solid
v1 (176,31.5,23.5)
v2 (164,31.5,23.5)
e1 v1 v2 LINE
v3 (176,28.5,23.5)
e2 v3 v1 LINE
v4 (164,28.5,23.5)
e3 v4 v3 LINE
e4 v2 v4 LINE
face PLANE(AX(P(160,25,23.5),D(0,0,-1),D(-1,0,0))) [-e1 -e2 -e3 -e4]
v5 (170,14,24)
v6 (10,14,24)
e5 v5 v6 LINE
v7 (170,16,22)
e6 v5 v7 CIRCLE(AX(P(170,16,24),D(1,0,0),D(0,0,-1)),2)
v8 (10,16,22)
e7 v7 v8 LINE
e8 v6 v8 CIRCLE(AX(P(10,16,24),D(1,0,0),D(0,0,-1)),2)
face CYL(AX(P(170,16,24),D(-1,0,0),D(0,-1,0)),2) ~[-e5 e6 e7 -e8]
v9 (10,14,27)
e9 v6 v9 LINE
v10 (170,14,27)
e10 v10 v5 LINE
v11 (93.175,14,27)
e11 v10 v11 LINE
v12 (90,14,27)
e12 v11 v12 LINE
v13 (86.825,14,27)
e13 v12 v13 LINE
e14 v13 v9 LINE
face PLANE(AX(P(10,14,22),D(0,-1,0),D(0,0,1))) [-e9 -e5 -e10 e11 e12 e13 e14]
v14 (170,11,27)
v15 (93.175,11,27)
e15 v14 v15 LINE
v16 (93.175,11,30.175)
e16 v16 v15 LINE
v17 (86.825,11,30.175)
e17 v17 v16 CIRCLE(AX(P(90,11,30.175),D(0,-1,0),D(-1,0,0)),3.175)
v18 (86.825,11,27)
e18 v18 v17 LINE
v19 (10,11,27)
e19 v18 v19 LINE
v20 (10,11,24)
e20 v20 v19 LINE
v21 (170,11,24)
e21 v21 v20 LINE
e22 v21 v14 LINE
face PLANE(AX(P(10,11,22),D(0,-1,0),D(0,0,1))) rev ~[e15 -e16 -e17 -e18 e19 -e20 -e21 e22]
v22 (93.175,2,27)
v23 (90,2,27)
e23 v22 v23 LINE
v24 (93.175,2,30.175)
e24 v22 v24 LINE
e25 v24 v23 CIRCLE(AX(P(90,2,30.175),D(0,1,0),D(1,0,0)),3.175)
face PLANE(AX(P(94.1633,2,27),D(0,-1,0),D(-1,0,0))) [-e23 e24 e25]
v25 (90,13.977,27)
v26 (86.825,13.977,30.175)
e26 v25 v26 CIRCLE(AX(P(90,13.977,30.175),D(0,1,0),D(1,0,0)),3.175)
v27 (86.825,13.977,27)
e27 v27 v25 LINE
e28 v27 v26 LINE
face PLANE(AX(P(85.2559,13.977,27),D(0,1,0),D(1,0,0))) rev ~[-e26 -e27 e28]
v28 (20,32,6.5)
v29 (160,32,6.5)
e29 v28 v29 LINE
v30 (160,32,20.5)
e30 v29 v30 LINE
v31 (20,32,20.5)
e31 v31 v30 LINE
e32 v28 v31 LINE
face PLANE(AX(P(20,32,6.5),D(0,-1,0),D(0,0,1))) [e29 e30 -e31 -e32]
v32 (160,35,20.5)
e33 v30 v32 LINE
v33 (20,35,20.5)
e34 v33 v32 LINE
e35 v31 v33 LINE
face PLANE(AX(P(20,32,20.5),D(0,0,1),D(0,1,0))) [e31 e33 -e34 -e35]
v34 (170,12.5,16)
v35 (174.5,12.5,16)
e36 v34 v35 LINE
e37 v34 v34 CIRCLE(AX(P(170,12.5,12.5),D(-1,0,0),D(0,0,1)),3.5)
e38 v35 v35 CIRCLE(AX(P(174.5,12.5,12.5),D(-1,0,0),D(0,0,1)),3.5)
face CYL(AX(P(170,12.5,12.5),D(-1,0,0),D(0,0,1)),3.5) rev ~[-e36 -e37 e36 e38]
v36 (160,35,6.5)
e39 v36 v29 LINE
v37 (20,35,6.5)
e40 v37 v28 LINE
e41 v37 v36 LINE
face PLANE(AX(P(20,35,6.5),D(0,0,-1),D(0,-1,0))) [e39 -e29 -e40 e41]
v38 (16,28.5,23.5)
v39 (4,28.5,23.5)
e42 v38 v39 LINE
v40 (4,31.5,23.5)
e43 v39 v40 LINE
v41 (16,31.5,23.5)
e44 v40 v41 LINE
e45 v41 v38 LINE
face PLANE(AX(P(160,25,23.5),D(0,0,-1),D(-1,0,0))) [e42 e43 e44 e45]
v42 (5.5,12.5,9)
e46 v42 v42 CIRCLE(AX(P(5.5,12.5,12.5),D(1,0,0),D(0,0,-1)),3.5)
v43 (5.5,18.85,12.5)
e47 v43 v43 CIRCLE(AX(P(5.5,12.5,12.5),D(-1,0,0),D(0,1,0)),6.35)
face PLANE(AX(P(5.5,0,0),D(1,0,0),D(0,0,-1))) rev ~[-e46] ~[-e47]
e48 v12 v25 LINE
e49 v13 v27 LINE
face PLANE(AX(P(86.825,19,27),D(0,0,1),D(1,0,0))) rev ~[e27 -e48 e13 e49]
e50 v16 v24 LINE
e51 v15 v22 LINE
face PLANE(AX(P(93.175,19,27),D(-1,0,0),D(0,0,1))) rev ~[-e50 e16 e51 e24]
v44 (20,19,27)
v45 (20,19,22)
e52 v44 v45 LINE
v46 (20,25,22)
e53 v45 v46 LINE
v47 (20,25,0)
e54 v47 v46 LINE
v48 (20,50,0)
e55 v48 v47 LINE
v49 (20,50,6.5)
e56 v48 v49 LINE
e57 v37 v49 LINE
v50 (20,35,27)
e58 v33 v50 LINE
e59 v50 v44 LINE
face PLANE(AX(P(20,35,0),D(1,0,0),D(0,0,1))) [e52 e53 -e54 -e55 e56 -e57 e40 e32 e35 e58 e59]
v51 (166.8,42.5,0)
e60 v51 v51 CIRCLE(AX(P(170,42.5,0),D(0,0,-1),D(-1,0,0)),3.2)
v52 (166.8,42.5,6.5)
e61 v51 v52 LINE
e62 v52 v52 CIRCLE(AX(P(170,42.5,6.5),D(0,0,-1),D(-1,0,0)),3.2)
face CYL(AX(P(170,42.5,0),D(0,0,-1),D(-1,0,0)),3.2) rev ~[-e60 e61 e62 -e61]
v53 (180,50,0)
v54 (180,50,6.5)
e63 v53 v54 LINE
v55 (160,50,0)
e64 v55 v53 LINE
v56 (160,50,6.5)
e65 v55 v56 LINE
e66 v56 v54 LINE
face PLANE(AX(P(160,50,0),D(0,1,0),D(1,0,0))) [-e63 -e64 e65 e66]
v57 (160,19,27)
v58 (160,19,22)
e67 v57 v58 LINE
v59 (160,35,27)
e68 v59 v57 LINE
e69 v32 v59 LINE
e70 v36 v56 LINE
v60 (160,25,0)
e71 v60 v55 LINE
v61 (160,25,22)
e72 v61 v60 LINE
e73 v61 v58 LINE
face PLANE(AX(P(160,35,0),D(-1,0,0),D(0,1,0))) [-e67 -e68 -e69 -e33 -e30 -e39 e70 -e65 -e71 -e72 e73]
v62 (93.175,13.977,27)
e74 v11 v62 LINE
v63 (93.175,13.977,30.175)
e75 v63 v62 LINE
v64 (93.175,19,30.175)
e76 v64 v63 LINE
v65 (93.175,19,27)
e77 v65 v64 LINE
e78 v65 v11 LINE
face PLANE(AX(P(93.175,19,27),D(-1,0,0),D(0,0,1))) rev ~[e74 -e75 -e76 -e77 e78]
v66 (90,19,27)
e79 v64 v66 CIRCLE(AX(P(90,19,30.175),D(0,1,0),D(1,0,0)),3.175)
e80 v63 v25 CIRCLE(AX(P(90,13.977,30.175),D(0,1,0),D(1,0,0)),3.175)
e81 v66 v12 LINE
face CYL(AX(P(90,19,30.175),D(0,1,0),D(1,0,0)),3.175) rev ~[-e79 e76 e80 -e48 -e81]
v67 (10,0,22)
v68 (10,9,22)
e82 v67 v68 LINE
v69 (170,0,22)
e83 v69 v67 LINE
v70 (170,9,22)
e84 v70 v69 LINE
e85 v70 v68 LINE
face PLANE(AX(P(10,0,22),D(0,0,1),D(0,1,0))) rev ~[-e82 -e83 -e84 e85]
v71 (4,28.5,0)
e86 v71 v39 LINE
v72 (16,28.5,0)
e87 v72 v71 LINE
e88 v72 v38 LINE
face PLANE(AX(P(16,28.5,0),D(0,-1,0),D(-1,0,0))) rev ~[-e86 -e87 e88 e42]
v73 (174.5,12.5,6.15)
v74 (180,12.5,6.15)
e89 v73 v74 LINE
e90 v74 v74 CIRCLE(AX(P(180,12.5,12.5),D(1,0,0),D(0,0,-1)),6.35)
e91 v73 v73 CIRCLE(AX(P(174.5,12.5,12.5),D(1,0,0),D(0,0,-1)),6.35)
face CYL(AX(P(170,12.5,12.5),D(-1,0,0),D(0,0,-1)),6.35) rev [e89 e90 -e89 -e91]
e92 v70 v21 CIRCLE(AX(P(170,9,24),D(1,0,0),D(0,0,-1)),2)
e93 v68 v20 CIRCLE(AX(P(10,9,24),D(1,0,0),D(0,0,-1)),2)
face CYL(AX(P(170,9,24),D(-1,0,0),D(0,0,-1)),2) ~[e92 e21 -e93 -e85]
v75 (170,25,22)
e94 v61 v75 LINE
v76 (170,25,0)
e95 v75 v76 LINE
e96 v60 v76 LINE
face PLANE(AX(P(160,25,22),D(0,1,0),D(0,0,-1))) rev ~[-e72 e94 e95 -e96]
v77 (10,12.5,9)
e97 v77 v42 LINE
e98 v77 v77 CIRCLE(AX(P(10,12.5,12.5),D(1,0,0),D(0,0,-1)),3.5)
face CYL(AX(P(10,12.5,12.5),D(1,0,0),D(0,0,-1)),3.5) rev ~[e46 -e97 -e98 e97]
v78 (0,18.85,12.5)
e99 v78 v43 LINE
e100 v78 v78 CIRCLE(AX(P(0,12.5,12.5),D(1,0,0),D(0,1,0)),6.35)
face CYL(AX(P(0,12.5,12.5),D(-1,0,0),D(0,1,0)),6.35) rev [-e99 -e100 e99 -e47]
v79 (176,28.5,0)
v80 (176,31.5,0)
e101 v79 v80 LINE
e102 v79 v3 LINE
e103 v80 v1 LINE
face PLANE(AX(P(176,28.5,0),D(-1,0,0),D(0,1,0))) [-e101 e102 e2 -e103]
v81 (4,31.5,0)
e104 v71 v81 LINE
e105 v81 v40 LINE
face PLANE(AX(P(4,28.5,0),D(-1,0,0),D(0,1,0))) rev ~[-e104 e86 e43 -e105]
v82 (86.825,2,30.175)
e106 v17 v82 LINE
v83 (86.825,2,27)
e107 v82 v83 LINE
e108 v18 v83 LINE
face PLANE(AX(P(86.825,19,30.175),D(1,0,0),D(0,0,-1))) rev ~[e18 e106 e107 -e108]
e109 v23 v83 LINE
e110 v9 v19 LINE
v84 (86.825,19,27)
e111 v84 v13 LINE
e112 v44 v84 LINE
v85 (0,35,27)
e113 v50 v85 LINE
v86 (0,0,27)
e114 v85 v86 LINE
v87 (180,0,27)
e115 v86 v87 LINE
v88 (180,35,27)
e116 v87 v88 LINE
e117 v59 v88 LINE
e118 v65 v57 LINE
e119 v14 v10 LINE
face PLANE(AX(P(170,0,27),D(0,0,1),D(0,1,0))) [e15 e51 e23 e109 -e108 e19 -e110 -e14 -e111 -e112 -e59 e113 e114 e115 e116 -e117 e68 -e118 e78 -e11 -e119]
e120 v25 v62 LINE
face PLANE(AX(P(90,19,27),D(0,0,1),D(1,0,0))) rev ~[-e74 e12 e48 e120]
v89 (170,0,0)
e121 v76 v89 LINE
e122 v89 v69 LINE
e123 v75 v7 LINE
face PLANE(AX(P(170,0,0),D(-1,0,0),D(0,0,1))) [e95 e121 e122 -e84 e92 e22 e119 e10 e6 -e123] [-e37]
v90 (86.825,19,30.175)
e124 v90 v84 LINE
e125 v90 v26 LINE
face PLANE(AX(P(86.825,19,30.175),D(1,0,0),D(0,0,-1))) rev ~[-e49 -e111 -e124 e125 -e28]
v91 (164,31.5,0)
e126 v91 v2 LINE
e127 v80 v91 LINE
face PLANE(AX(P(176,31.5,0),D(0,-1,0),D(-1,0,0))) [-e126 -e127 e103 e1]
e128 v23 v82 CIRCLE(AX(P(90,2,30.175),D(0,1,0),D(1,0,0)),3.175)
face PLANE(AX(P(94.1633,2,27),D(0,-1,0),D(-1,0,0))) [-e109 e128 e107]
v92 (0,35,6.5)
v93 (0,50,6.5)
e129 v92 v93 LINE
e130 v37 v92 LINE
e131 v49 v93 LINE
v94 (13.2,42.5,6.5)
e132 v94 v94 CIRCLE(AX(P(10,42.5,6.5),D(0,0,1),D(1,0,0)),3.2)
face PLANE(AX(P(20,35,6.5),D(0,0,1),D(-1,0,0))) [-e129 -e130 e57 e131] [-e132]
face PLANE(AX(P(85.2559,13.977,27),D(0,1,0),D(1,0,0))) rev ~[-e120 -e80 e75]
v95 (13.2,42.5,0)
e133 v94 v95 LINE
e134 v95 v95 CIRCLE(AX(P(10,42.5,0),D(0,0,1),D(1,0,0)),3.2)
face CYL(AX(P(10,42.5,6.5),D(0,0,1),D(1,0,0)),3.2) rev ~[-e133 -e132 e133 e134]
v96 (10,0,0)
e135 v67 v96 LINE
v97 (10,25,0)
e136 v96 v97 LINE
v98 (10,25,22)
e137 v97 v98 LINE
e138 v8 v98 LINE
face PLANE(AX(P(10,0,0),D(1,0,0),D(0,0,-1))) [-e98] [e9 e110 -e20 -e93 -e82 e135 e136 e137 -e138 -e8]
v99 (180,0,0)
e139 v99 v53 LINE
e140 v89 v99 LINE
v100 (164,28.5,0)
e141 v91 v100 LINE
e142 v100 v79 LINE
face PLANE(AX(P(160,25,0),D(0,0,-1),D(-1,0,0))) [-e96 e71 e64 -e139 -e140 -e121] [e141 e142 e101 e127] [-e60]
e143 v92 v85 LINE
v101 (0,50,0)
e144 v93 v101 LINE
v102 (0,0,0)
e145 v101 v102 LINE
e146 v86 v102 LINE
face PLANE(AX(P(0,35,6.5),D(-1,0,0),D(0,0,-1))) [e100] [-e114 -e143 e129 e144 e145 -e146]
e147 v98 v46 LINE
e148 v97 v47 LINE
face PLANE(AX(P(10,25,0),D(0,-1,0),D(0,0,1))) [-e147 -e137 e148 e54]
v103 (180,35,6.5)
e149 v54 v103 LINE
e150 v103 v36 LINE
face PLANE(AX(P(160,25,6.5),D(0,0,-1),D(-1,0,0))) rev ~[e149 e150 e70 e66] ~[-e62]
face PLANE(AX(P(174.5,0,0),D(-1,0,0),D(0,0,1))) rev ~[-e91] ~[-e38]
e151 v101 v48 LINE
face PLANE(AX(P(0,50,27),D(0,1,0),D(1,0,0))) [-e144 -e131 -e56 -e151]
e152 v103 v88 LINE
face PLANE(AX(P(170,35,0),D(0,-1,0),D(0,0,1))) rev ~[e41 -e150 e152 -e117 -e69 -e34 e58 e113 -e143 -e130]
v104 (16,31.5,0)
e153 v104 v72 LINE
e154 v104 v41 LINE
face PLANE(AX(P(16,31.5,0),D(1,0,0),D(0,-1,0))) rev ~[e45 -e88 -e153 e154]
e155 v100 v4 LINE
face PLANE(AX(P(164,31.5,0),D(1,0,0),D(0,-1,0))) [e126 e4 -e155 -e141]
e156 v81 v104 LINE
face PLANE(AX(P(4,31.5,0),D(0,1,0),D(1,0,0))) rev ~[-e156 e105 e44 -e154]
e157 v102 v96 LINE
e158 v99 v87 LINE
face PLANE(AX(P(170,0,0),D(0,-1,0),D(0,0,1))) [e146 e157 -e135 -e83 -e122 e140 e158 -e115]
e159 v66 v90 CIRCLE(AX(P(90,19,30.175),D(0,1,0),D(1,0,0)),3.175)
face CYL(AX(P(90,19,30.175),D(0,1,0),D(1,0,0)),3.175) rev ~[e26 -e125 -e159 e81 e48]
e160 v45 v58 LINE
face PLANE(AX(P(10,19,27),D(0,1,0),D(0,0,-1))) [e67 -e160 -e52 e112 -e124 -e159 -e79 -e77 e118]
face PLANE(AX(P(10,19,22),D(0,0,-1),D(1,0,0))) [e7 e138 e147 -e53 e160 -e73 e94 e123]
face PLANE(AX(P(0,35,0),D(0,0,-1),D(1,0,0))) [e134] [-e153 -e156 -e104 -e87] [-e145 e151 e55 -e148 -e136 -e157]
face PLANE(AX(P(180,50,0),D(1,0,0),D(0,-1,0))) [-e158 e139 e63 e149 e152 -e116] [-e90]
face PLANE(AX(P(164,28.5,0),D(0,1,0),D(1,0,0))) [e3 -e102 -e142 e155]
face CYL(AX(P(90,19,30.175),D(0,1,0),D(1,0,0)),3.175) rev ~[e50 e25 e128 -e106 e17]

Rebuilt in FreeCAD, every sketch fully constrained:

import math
import FreeCAD as App
import Part
import Sketcher

V = App.Vector


def edges_at(feature, points):
    """Names of the edges that pass closest to the given points."""
    edges = feature.Shape.Edges
    near = lambda p: min(range(len(edges)), key=lambda i: edges[i].distToShape(Part.Vertex(*p))[0])
    return sorted({f"Edge{near(p) + 1}" for p in points})


def add_polygon(sketch, points):
    """Adds a closed chain of lines whose ends are joined by coincident constraints."""
    first, n = sketch.GeometryCount, len(points)
    for a, b in zip(points, points[1:] + points[:1]):
        sketch.addGeometry(Part.LineSegment(App.Vector(*a, 0), App.Vector(*b, 0)), False)
    for i in range(n):
        sketch.addConstraint(Sketcher.Constraint("Coincident", first + i, 2, first + (i + 1) % n, 1))

doc = App.newDocument("Part")
params = doc.addObject("Spreadsheet::Sheet", "Params")
for row, (alias, value) in enumerate([
    ("sketch1_diameter", "12.7 mm"),
    ("sketch1_width", "35 mm"),
    ("sketch1_height", "27 mm"),
    ("pad1_length", "10 mm"),
    ("sketch2_width", "10 mm"),
    ("sketch2_height", "27 mm"),
    ("pad2_length", "10 mm"),
    ("sketch3_width", "5 mm"),
    ("sketch3_width2", "11 mm"),
    ("pad3_length", "150 mm"),
    ("sketch4_width", "10 mm"),
    ("sketch4_height", "5 mm"),
    ("pad4_length", "7.5 mm"),
    ("sketch5_width", "11 mm"),
    ("sketch5_height", "5 mm"),
    ("sketch5_width2", "21 mm"),
    ("sketch5_height2", "22 mm"),
    ("pad5_length", "10 mm"),
    ("sketch6_diameter", "12.7 mm"),
    ("sketch6_width", "35 mm"),
    ("sketch6_height", "27 mm"),
    ("pad6_length", "10 mm"),
    ("fillet_radius", "2 mm"),
    ("sketch7_width", "3 mm"),
    ("sketch7_height", "14 mm"),
    ("pad7_length", "140 mm"),
    ("sketch8_width", "12 mm"),
    ("sketch8_height", "3 mm"),
    ("pocket1_length", "23.5 mm"),
    ("sketch9_diameter", "7 mm"),
    ("sketch9_diameter2", "12.7 mm"),
    ("pad8_length", "4.5 mm"),
    ("sketch10_diameter", "7 mm"),
    ("sketch10_diameter2", "12.7 mm"),
    ("pad9_length", "4.5 mm"),
    ("pad10_length", "19 mm"),
    ("sketch12_height", "2 mm"),
    ("pocket2_length", "19 mm"),
    ("sketch13_width", "20 mm"),
    ("sketch13_height", "6.5 mm"),
    ("pad11_length", "15 mm"),
    ("sketch14_diameter", "6.4 mm"),
    ("pocket3_length", "15 mm"),
    ("sketch15_diameter", "6.4 mm"),
    ("sketch15_width", "20 mm"),
    ("sketch15_height", "15 mm"),
    ("pad12_length", "6.5 mm"),
], start=1):
    params.set(f"A{row}", alias)
    params.set(f"B{row}", "=" + value)
    params.setAlias(f"B{row}", alias)

body = doc.addObject("PartDesign::Body", "Body")

# Sketch on YZ plane
sketch1 = body.newObject("Sketcher::SketchObject", "Sketch")
sketch1.AttachmentSupport = (doc.getObject("YZ_Plane"), [""])
sketch1.MapMode = "FlatFace"
add_polygon(sketch1, [(0, 27), (0, 0), (35, 0), (35, 27)])  # lines 0-3
sketch1.addGeometry(Part.Circle(V(12.5, 12.5, 0), V(0, 0, 1), 6.35), False)  # 4
sketch1.addConstraint(Sketcher.Constraint("Vertical", 0))
sketch1.addConstraint(Sketcher.Constraint("Horizontal", 1))
sketch1.addConstraint(Sketcher.Constraint("Vertical", 2))
sketch1.addConstraint(Sketcher.Constraint("Horizontal", 3))
sketch1.addConstraint(Sketcher.Constraint("Coincident", 0, 2, -1, 1))
sketch1.addConstraint(Sketcher.Constraint("Diameter", 4, 12.7))
sketch1.addConstraint(Sketcher.Constraint("DistanceX", 1, 1, 1, 2, 35.0))
sketch1.addConstraint(Sketcher.Constraint("DistanceY", 0, 2, 0, 1, 27.0))
sketch1.addConstraint(Sketcher.Constraint("DistanceX", -1, 1, 4, 3, 12.5))
sketch1.addConstraint(Sketcher.Constraint("DistanceY", -1, 1, 4, 3, 12.5))
sketch1.setExpression("Constraints[9]", "Params.sketch1_diameter")
sketch1.setExpression("Constraints[10]", "Params.sketch1_width")
sketch1.setExpression("Constraints[11]", "Params.sketch1_height")
pad1 = body.newObject("PartDesign::Pad", "Pad")
pad1.Profile = sketch1
pad1.setExpression("Length", "Params.pad1_length")

# Sketch on YZ plane
sketch2 = body.newObject("Sketcher::SketchObject", "Sketch001")
sketch2.AttachmentSupport = (doc.getObject("YZ_Plane"), [""])
sketch2.MapMode = "FlatFace"
sketch2.AttachmentOffset = App.Placement(V(0, 0, 10), App.Rotation())
add_polygon(sketch2, [(25, 0), (35, 0), (35, 27), (25, 27)])  # lines 0-3
sketch2.addConstraint(Sketcher.Constraint("Horizontal", 0))
sketch2.addConstraint(Sketcher.Constraint("Vertical", 1))
sketch2.addConstraint(Sketcher.Constraint("Horizontal", 2))
sketch2.addConstraint(Sketcher.Constraint("Vertical", 3))
sketch2.addConstraint(Sketcher.Constraint("PointOnObject", 0, 2, -1))
sketch2.addConstraint(Sketcher.Constraint("DistanceX", 0, 1, 0, 2, 10.0))
sketch2.addConstraint(Sketcher.Constraint("DistanceY", 1, 1, 1, 2, 27.0))
sketch2.addConstraint(Sketcher.Constraint("DistanceX", -1, 1, 0, 2, 35.0))
sketch2.setExpression("Constraints[9]", "Params.sketch2_width")
sketch2.setExpression("Constraints[10]", "Params.sketch2_height")
pad2 = body.newObject("PartDesign::Pad", "Pad001")
pad2.Profile = sketch2
pad2.setExpression("Length", "Params.pad2_length")

# Sketch on YZ plane
sketch3 = body.newObject("Sketcher::SketchObject", "Sketch002")
sketch3.AttachmentSupport = (doc.getObject("YZ_Plane"), [""])
sketch3.MapMode = "FlatFace"
sketch3.AttachmentOffset = App.Placement(V(0, 0, 10), App.Rotation())
add_polygon(sketch3, [(19, 22), (19, 27), (14, 27), (14, 22)])  # lines 0-3
add_polygon(sketch3, [(11, 22), (11, 27), (0, 27), (0, 22)])  # lines 4-7
sketch3.addConstraint(Sketcher.Constraint("Vertical", 0))
sketch3.addConstraint(Sketcher.Constraint("Horizontal", 1))
sketch3.addConstraint(Sketcher.Constraint("Vertical", 2))
sketch3.addConstraint(Sketcher.Constraint("Horizontal", 3))
sketch3.addConstraint(Sketcher.Constraint("Vertical", 4))
sketch3.addConstraint(Sketcher.Constraint("Horizontal", 5))
sketch3.addConstraint(Sketcher.Constraint("Vertical", 6))
sketch3.addConstraint(Sketcher.Constraint("Horizontal", 7))
sketch3.addConstraint(Sketcher.Constraint("PointOnObject", 5, 2, -2))
sketch3.addConstraint(Sketcher.Constraint("Horizontal", 1, 2, 4, 2))
sketch3.addConstraint(Sketcher.Constraint("Horizontal", 3, 2, 6, 2))
sketch3.addConstraint(Sketcher.Constraint("Equal", 3, 0))
sketch3.addConstraint(Sketcher.Constraint("DistanceX", 1, 2, 1, 1, 5.0))
sketch3.addConstraint(Sketcher.Constraint("DistanceX", 5, 2, 5, 1, 11.0))
sketch3.addConstraint(Sketcher.Constraint("DistanceX", -1, 1, 0, 2, 19.0))
sketch3.addConstraint(Sketcher.Constraint("DistanceY", -1, 1, 0, 2, 27.0))
sketch3.setExpression("Constraints[20]", "Params.sketch3_width")
sketch3.setExpression("Constraints[21]", "Params.sketch3_width2")
pad3 = body.newObject("PartDesign::Pad", "Pad002")
pad3.Profile = sketch3
pad3.setExpression("Length", "Params.pad3_length")

# Sketch on XZ plane
sketch4 = body.newObject("Sketcher::SketchObject", "Sketch003")
sketch4.AttachmentSupport = (doc.getObject("XZ_Plane"), [""])
sketch4.MapMode = "FlatFace"
sketch4.AttachmentOffset = App.Placement(V(0, 0, -19), App.Rotation())
add_polygon(sketch4, [(10, 22), (10, 27), (20, 27), (20, 22)])  # lines 0-3
sketch4.addConstraint(Sketcher.Constraint("Vertical", 0))
sketch4.addConstraint(Sketcher.Constraint("Horizontal", 1))
sketch4.addConstraint(Sketcher.Constraint("Vertical", 2))
sketch4.addConstraint(Sketcher.Constraint("Horizontal", 3))
sketch4.addConstraint(Sketcher.Constraint("DistanceX", 1, 1, 1, 2, 10.0))
sketch4.addConstraint(Sketcher.Constraint("DistanceX", -1, 1, 0, 2, 10.0))
sketch4.addConstraint(Sketcher.Constraint("DistanceY", 0, 1, 0, 2, 5.0))
sketch4.addConstraint(Sketcher.Constraint("DistanceY", -1, 1, 0, 2, 27.0))
sketch4.setExpression("Constraints[8]", "Params.sketch4_width")
sketch4.setExpression("Constraints[10]", "Params.sketch4_height")
pad4 = body.newObject("PartDesign::Pad", "Pad003")
pad4.Profile = sketch4
pad4.setExpression("Length", "Params.pad4_length")
pad4.Reversed = True

# Sketch on YZ plane
sketch5 = body.newObject("Sketcher::SketchObject", "Sketch004")
sketch5.AttachmentSupport = (doc.getObject("YZ_Plane"), [""])
sketch5.MapMode = "FlatFace"
sketch5.AttachmentOffset = App.Placement(V(0, 0, 160), App.Rotation())
add_polygon(sketch5, [(35, 27), (14, 27), (14, 22), (25, 22), (25, 0), (35, 0)])  # lines 0-5
add_polygon(sketch5, [(0, 22), (11, 22), (11, 27), (0, 27)])  # lines 6-9
sketch5.addConstraint(Sketcher.Constraint("Horizontal", 0))
sketch5.addConstraint(Sketcher.Constraint("Vertical", 1))
sketch5.addConstraint(Sketcher.Constraint("Horizontal", 2))
sketch5.addConstraint(Sketcher.Constraint("Vertical", 3))
sketch5.addConstraint(Sketcher.Constraint("Horizontal", 4))
sketch5.addConstraint(Sketcher.Constraint("Vertical", 5))
sketch5.addConstraint(Sketcher.Constraint("Horizontal", 6))
sketch5.addConstraint(Sketcher.Constraint("Vertical", 7))
sketch5.addConstraint(Sketcher.Constraint("Horizontal", 8))
sketch5.addConstraint(Sketcher.Constraint("Vertical", 9))
sketch5.addConstraint(Sketcher.Constraint("PointOnObject", 3, 2, -1))
sketch5.addConstraint(Sketcher.Constraint("PointOnObject", 8, 2, -2))
sketch5.addConstraint(Sketcher.Constraint("Horizontal", 2, 2, 6, 2))
sketch5.addConstraint(Sketcher.Constraint("Horizontal", 5, 2, 7, 2))
sketch5.addConstraint(Sketcher.Constraint("Equal", 2, 6))
sketch5.addConstraint(Sketcher.Constraint("DistanceX", 2, 1, 2, 2, 11.0))
sketch5.addConstraint(Sketcher.Constraint("DistanceY", 1, 2, 1, 1, 5.0))
sketch5.addConstraint(Sketcher.Constraint("DistanceX", 0, 2, 0, 1, 21.0))
sketch5.addConstraint(Sketcher.Constraint("DistanceY", 3, 2, 3, 1, 22.0))
sketch5.addConstraint(Sketcher.Constraint("DistanceX", -1, 1, 0, 2, 14.0))
sketch5.setExpression("Constraints[25]", "Params.sketch5_width")
sketch5.setExpression("Constraints[26]", "Params.sketch5_height")
sketch5.setExpression("Constraints[27]", "Params.sketch5_width2")
sketch5.setExpression("Constraints[28]", "Params.sketch5_height2")
pad5 = body.newObject("PartDesign::Pad", "Pad004")
pad5.Profile = sketch5
pad5.setExpression("Length", "Params.pad5_length")

# Sketch on YZ plane
sketch6 = body.newObject("Sketcher::SketchObject", "Sketch005")
sketch6.AttachmentSupport = (doc.getObject("YZ_Plane"), [""])
sketch6.MapMode = "FlatFace"
sketch6.AttachmentOffset = App.Placement(V(0, 0, 170), App.Rotation())
add_polygon(sketch6, [(0, 0), (35, 0), (35, 27), (0, 27)])  # lines 0-3
sketch6.addGeometry(Part.Circle(V(12.5, 12.5, 0), V(0, 0, 1), 6.35), False)  # 4
sketch6.addConstraint(Sketcher.Constraint("Horizontal", 0))
sketch6.addConstraint(Sketcher.Constraint("Vertical", 1))
sketch6.addConstraint(Sketcher.Constraint("Horizontal", 2))
sketch6.addConstraint(Sketcher.Constraint("Vertical", 3))
sketch6.addConstraint(Sketcher.Constraint("Coincident", 3, 2, -1, 1))
sketch6.addConstraint(Sketcher.Constraint("Diameter", 4, 12.7))
sketch6.addConstraint(Sketcher.Constraint("DistanceX", 0, 1, 0, 2, 35.0))
sketch6.addConstraint(Sketcher.Constraint("DistanceY", 1, 1, 1, 2, 27.0))
sketch6.addConstraint(Sketcher.Constraint("DistanceX", -1, 1, 4, 3, 12.5))
sketch6.addConstraint(Sketcher.Constraint("DistanceY", -1, 1, 4, 3, 12.5))
sketch6.setExpression("Constraints[9]", "Params.sketch6_diameter")
sketch6.setExpression("Constraints[10]", "Params.sketch6_width")
sketch6.setExpression("Constraints[11]", "Params.sketch6_height")
pad6 = body.newObject("PartDesign::Pad", "Pad005")
pad6.Profile = sketch6
pad6.setExpression("Length", "Params.pad6_length")
doc.recompute()

fillet = body.newObject("PartDesign::Fillet", "Fillet")
fillet.Base = (pad6, edges_at(pad6, [(90, 11, 22), (90, 14, 22)]))
fillet.setExpression("Radius", "Params.fillet_radius")

# Sketch on YZ plane
sketch7 = body.newObject("Sketcher::SketchObject", "Sketch006")
sketch7.AttachmentSupport = (doc.getObject("YZ_Plane"), [""])
sketch7.MapMode = "FlatFace"
sketch7.AttachmentOffset = App.Placement(V(0, 0, 20), App.Rotation())
add_polygon(sketch7, [(32, 6.5), (35, 6.5), (35, 20.5), (32, 20.5)])  # lines 0-3
sketch7.addConstraint(Sketcher.Constraint("Horizontal", 0))
sketch7.addConstraint(Sketcher.Constraint("Vertical", 1))
sketch7.addConstraint(Sketcher.Constraint("Horizontal", 2))
sketch7.addConstraint(Sketcher.Constraint("Vertical", 3))
sketch7.addConstraint(Sketcher.Constraint("DistanceX", 0, 1, 0, 2, 3.0))
sketch7.addConstraint(Sketcher.Constraint("DistanceY", 1, 1, 1, 2, 14.0))
sketch7.addConstraint(Sketcher.Constraint("DistanceX", -1, 1, 0, 2, 35.0))
sketch7.addConstraint(Sketcher.Constraint("DistanceY", -1, 1, 0, 2, 6.5))
sketch7.setExpression("Constraints[8]", "Params.sketch7_width")
sketch7.setExpression("Constraints[9]", "Params.sketch7_height")
pad7 = body.newObject("PartDesign::Pad", "Pad006")
pad7.Profile = sketch7
pad7.setExpression("Length", "Params.pad7_length")

# Sketch on XY plane
sketch8 = body.newObject("Sketcher::SketchObject", "Sketch007")
sketch8.AttachmentSupport = (doc.getObject("XY_Plane"), [""])
sketch8.MapMode = "FlatFace"
add_polygon(sketch8, [(176, 28.5), (164, 28.5), (164, 31.5), (176, 31.5)])  # lines 0-3
add_polygon(sketch8, [(4, 28.5), (4, 31.5), (16, 31.5), (16, 28.5)])  # lines 4-7
sketch8.addConstraint(Sketcher.Constraint("Horizontal", 0))
sketch8.addConstraint(Sketcher.Constraint("Vertical", 1))
sketch8.addConstraint(Sketcher.Constraint("Horizontal", 2))
sketch8.addConstraint(Sketcher.Constraint("Vertical", 3))
sketch8.addConstraint(Sketcher.Constraint("Vertical", 4))
sketch8.addConstraint(Sketcher.Constraint("Horizontal", 5))
sketch8.addConstraint(Sketcher.Constraint("Vertical", 6))
sketch8.addConstraint(Sketcher.Constraint("Horizontal", 7))
sketch8.addConstraint(Sketcher.Constraint("Horizontal", 2, 2, 4, 2))
sketch8.addConstraint(Sketcher.Constraint("Horizontal", 3, 2, 6, 2))
sketch8.addConstraint(Sketcher.Constraint("Equal", 2, 5))
sketch8.addConstraint(Sketcher.Constraint("DistanceX", 0, 2, 0, 1, 12.0))
sketch8.addConstraint(Sketcher.Constraint("DistanceY", 1, 1, 1, 2, 3.0))
sketch8.addConstraint(Sketcher.Constraint("DistanceX", -1, 1, 0, 2, 164.0))
sketch8.addConstraint(Sketcher.Constraint("DistanceX", -1, 1, 4, 2, 4.0))
sketch8.addConstraint(Sketcher.Constraint("DistanceY", -1, 1, 0, 2, 28.5))
sketch8.setExpression("Constraints[19]", "Params.sketch8_width")
sketch8.setExpression("Constraints[20]", "Params.sketch8_height")
pocket1 = body.newObject("PartDesign::Pocket", "Pocket")
pocket1.Profile = sketch8
pocket1.setExpression("Length", "Params.pocket1_length")
pocket1.Reversed = True

# Sketch on YZ plane
sketch9 = body.newObject("Sketcher::SketchObject", "Sketch008")
sketch9.AttachmentSupport = (doc.getObject("YZ_Plane"), [""])
sketch9.MapMode = "FlatFace"
sketch9.AttachmentOffset = App.Placement(V(0, 0, 170), App.Rotation())
sketch9.addGeometry(Part.Circle(V(12.5, 12.5, 0), V(0, 0, 1), 6.35), False)
sketch9.addGeometry(Part.Circle(V(12.5, 12.5, 0), V(0, 0, 1), 3.5), False)
sketch9.addConstraint(Sketcher.Constraint("Coincident", 1, 3, 0, 3))
sketch9.addConstraint(Sketcher.Constraint("Diameter", 1, 7.0))
sketch9.addConstraint(Sketcher.Constraint("Diameter", 0, 12.7))
sketch9.addConstraint(Sketcher.Constraint("DistanceX", -1, 1, 0, 3, 12.5))
sketch9.addConstraint(Sketcher.Constraint("DistanceY", -1, 1, 0, 3, 12.5))
sketch9.setExpression("Constraints[1]", "Params.sketch9_diameter")
sketch9.setExpression("Constraints[2]", "Params.sketch9_diameter2")
pad8 = body.newObject("PartDesign::Pad", "Pad007")
pad8.Profile = sketch9
pad8.setExpression("Length", "Params.pad8_length")

# Sketch on YZ plane
sketch10 = body.newObject("Sketcher::SketchObject", "Sketch009")
sketch10.AttachmentSupport = (doc.getObject("YZ_Plane"), [""])
sketch10.MapMode = "FlatFace"
sketch10.AttachmentOffset = App.Placement(V(0, 0, 10), App.Rotation())
sketch10.addGeometry(Part.Circle(V(12.5, 12.5, 0), V(0, 0, 1), 6.35), False)
sketch10.addGeometry(Part.Circle(V(12.5, 12.5, 0), V(0, 0, 1), 3.5), False)
sketch10.addConstraint(Sketcher.Constraint("Coincident", 1, 3, 0, 3))
sketch10.addConstraint(Sketcher.Constraint("Diameter", 1, 7.0))
sketch10.addConstraint(Sketcher.Constraint("Diameter", 0, 12.7))
sketch10.addConstraint(Sketcher.Constraint("DistanceX", -1, 1, 0, 3, 12.5))
sketch10.addConstraint(Sketcher.Constraint("DistanceY", -1, 1, 0, 3, 12.5))
sketch10.setExpression("Constraints[1]", "Params.sketch10_diameter")
sketch10.setExpression("Constraints[2]", "Params.sketch10_diameter2")
pad9 = body.newObject("PartDesign::Pad", "Pad008")
pad9.Profile = sketch10
pad9.setExpression("Length", "Params.pad9_length")
pad9.Reversed = True

# Sketch on XZ plane
sketch11 = body.newObject("Sketcher::SketchObject", "Sketch010")
sketch11.AttachmentSupport = (doc.getObject("XZ_Plane"), [""])
sketch11.MapMode = "FlatFace"
sketch11.AttachmentOffset = App.Placement(V(0, 0, -19), App.Rotation())
sketch11.addGeometry(Part.LineSegment(V(90, 27, 0), V(86.825, 27, 0)), False)
sketch11.addGeometry(Part.LineSegment(V(86.825, 27, 0), V(86.825, 30.175, 0)), False)
sketch11.addGeometry(Part.ArcOfCircle(Part.Circle(V(90, 30.175, 0), V(0, 0, 1), 3.175), math.radians(180), math.radians(270)), False)
sketch11.addGeometry(Part.LineSegment(V(93.175, 27, 0), V(90, 27, 0)), False)
sketch11.addGeometry(Part.ArcOfCircle(Part.Circle(V(90, 30.175, 0), V(0, 0, 1), 3.175), math.radians(-90), math.radians(0)), False)
sketch11.addGeometry(Part.LineSegment(V(93.175, 30.175, 0), V(93.175, 27, 0)), False)
sketch11.addConstraint(Sketcher.Constraint("Coincident", 0, 2, 1, 1))
sketch11.addConstraint(Sketcher.Constraint("Tangent", 1, 2, 2, 1))
sketch11.addConstraint(Sketcher.Constraint("Tangent", 2, 2, 0, 1))
sketch11.addConstraint(Sketcher.Constraint("Tangent", 3, 2, 4, 1))
sketch11.addConstraint(Sketcher.Constraint("Tangent", 4, 2, 5, 1))
sketch11.addConstraint(Sketcher.Constraint("Coincident", 5, 2, 3, 1))
sketch11.addConstraint(Sketcher.Constraint("Horizontal", 0))
sketch11.addConstraint(Sketcher.Constraint("Vertical", 1))
sketch11.addConstraint(Sketcher.Constraint("Horizontal", 3))
sketch11.addConstraint(Sketcher.Constraint("Vertical", 5))
sketch11.addConstraint(Sketcher.Constraint("Coincident", 4, 3, 2, 3))
sketch11.addConstraint(Sketcher.Constraint("Equal", 2, 4))
sketch11.addConstraint(Sketcher.Constraint("DistanceX", -1, 1, 2, 3, 90.0))
sketch11.addConstraint(Sketcher.Constraint("DistanceY", -1, 1, 0, 2, 27.0))
sketch11.addConstraint(Sketcher.Constraint("Radius", 2, 3.175))
pad10 = body.newObject("PartDesign::Pad", "Pad009")
pad10.Profile = sketch11
pad10.setExpression("Length", "Params.pad10_length")

# Sketch on XY plane
sketch12 = body.newObject("Sketcher::SketchObject", "Sketch011")
sketch12.AttachmentSupport = (doc.getObject("XY_Plane"), [""])
sketch12.MapMode = "FlatFace"
sketch12.AttachmentOffset = App.Placement(V(0, 0, 27), App.Rotation())
add_polygon(sketch12, [(85.2559, 13.977), (85.2559, 11), (94.1633, 11), (94.1633, 13.977)])  # lines 0-3
add_polygon(sketch12, [(85.7944, 2), (85.7944, 0), (94.1633, 0), (94.1633, 2)])  # lines 4-7
sketch12.addConstraint(Sketcher.Constraint("Vertical", 0))
sketch12.addConstraint(Sketcher.Constraint("Horizontal", 1))
sketch12.addConstraint(Sketcher.Constraint("Vertical", 2))
sketch12.addConstraint(Sketcher.Constraint("Horizontal", 3))
sketch12.addConstraint(Sketcher.Constraint("Vertical", 4))
sketch12.addConstraint(Sketcher.Constraint("Horizontal", 5))
sketch12.addConstraint(Sketcher.Constraint("Vertical", 6))
sketch12.addConstraint(Sketcher.Constraint("Horizontal", 7))
sketch12.addConstraint(Sketcher.Constraint("PointOnObject", 4, 2, -1))
sketch12.addConstraint(Sketcher.Constraint("Vertical", 2, 2, 5, 2))
sketch12.addConstraint(Sketcher.Constraint("DistanceY", 4, 2, 4, 1, 2.0))
sketch12.addConstraint(Sketcher.Constraint("DistanceY", -1, 1, 0, 2, 11.0))
sketch12.addConstraint(Sketcher.Constraint("DistanceX", 5, 1, 5, 2, 8.369))
sketch12.addConstraint(Sketcher.Constraint("DistanceY", 0, 2, 0, 1, 2.977))
sketch12.addConstraint(Sketcher.Constraint("DistanceX", 1, 1, 1, 2, 8.9074))
sketch12.addConstraint(Sketcher.Constraint("DistanceX", -1, 1, 0, 2, 85.256))
sketch12.setExpression("Constraints[18]", "Params.sketch12_height")
pocket2 = body.newObject("PartDesign::Pocket", "Pocket001")
pocket2.Profile = sketch12
pocket2.setExpression("Length", "Params.pocket2_length")
pocket2.Reversed = True

# Sketch on XZ plane
sketch13 = body.newObject("Sketcher::SketchObject", "Sketch012")
sketch13.AttachmentSupport = (doc.getObject("XZ_Plane"), [""])
sketch13.MapMode = "FlatFace"
sketch13.AttachmentOffset = App.Placement(V(0, 0, -35), App.Rotation())
add_polygon(sketch13, [(0, 0), (0, 6.5), (20, 6.5), (20, 0)])  # lines 0-3
sketch13.addConstraint(Sketcher.Constraint("Vertical", 0))
sketch13.addConstraint(Sketcher.Constraint("Horizontal", 1))
sketch13.addConstraint(Sketcher.Constraint("Vertical", 2))
sketch13.addConstraint(Sketcher.Constraint("Horizontal", 3))
sketch13.addConstraint(Sketcher.Constraint("Coincident", 3, 2, -1, 1))
sketch13.addConstraint(Sketcher.Constraint("DistanceX", 1, 1, 1, 2, 20.0))
sketch13.addConstraint(Sketcher.Constraint("DistanceY", 0, 1, 0, 2, 6.5))
sketch13.setExpression("Constraints[9]", "Params.sketch13_width")
sketch13.setExpression("Constraints[10]", "Params.sketch13_height")
pad11 = body.newObject("PartDesign::Pad", "Pad010")
pad11.Profile = sketch13
pad11.setExpression("Length", "Params.pad11_length")
pad11.Reversed = True

# Sketch on XY plane
sketch14 = body.newObject("Sketcher::SketchObject", "Sketch013")
sketch14.AttachmentSupport = (doc.getObject("XY_Plane"), [""])
sketch14.MapMode = "FlatFace"
sketch14.AttachmentOffset = App.Placement(V(0, 0, 6.5), App.Rotation())
sketch14.addGeometry(Part.Circle(V(10, 42.5, 0), V(0, 0, 1), 3.2), False)
sketch14.addConstraint(Sketcher.Constraint("Diameter", 0, 6.4))
sketch14.addConstraint(Sketcher.Constraint("DistanceX", -1, 1, 0, 3, 10.0))
sketch14.addConstraint(Sketcher.Constraint("DistanceY", -1, 1, 0, 3, 42.5))
sketch14.setExpression("Constraints[0]", "Params.sketch14_diameter")
pocket3 = body.newObject("PartDesign::Pocket", "Pocket002")
pocket3.Profile = sketch14
pocket3.setExpression("Length", "Params.pocket3_length")

# Sketch on XY plane
sketch15 = body.newObject("Sketcher::SketchObject", "Sketch014")
sketch15.AttachmentSupport = (doc.getObject("XY_Plane"), [""])
sketch15.MapMode = "FlatFace"
add_polygon(sketch15, [(180, 50), (180, 35), (160, 35), (160, 50)])  # lines 0-3
sketch15.addGeometry(Part.Circle(V(170, 42.5, 0), V(0, 0, 1), 3.2), False)  # 4
sketch15.addConstraint(Sketcher.Constraint("Vertical", 0))
sketch15.addConstraint(Sketcher.Constraint("Horizontal", 1))
sketch15.addConstraint(Sketcher.Constraint("Vertical", 2))
sketch15.addConstraint(Sketcher.Constraint("Horizontal", 3))
sketch15.addConstraint(Sketcher.Constraint("Diameter", 4, 6.4))
sketch15.addConstraint(Sketcher.Constraint("DistanceX", 1, 2, 1, 1, 20.0))
sketch15.addConstraint(Sketcher.Constraint("DistanceY", 0, 2, 0, 1, 15.0))
sketch15.addConstraint(Sketcher.Constraint("DistanceX", -1, 1, 4, 3, 170.0))
sketch15.addConstraint(Sketcher.Constraint("DistanceX", -1, 1, 0, 2, 180.0))
sketch15.addConstraint(Sketcher.Constraint("DistanceY", -1, 1, 0, 2, 35.0))
sketch15.addConstraint(Sketcher.Constraint("DistanceY", -1, 1, 4, 3, 42.5))
sketch15.setExpression("Constraints[8]", "Params.sketch15_diameter")
sketch15.setExpression("Constraints[9]", "Params.sketch15_width")
sketch15.setExpression("Constraints[10]", "Params.sketch15_height")
pad12 = body.newObject("PartDesign::Pad", "Pad011")
pad12.Profile = sketch15
pad12.setExpression("Length", "Params.pad12_length")

doc.recompute()
